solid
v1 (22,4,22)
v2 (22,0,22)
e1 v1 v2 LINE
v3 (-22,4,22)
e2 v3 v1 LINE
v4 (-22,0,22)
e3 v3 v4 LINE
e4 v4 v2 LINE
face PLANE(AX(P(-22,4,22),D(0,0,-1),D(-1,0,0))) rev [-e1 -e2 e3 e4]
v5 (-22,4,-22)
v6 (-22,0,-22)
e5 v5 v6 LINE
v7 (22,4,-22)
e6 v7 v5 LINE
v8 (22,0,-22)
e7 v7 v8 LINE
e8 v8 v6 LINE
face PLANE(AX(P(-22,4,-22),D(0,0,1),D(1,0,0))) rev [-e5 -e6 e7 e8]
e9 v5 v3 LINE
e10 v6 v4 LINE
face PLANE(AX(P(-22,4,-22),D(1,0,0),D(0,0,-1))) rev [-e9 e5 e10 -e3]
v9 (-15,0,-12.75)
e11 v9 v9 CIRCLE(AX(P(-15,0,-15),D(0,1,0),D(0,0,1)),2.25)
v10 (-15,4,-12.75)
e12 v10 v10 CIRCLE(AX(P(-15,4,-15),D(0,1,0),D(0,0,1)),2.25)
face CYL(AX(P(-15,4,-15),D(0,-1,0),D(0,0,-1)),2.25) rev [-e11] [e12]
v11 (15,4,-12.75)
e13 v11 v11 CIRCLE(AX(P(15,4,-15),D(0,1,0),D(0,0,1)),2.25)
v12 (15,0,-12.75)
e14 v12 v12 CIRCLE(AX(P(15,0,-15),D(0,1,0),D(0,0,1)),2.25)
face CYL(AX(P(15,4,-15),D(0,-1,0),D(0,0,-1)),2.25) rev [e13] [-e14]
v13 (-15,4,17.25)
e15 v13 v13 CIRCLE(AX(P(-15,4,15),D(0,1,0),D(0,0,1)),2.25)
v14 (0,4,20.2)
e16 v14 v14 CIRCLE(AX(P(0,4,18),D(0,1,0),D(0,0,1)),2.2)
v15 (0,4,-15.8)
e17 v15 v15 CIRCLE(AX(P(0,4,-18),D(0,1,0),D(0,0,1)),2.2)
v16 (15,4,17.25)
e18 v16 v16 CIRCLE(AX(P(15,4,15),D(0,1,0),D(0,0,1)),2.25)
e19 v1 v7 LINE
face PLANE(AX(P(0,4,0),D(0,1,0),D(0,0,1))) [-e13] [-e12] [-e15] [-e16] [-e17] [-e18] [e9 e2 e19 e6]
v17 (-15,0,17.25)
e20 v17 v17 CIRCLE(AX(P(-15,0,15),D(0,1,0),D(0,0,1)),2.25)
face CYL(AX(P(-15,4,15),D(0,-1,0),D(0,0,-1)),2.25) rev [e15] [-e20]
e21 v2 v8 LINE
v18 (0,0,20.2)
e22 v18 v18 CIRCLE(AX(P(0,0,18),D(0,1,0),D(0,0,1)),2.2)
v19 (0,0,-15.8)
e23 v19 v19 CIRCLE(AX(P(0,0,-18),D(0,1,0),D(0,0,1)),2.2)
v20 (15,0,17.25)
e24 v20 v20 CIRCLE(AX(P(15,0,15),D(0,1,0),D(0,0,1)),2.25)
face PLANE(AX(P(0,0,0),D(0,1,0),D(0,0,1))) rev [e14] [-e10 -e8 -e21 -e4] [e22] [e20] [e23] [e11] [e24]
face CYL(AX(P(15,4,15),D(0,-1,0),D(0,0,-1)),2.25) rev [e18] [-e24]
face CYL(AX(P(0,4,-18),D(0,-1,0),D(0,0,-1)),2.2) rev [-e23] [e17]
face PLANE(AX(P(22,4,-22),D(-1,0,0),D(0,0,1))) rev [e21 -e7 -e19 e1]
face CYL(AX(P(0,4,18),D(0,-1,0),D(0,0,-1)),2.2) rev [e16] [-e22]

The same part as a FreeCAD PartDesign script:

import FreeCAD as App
import Part
import Sketcher
from FreeCAD import Vector
Q = App.Units.Quantity


def add_polygon(sketch, points):
    """Adds a closed chain of lines whose ends are joined by coincident constraints."""
    first, n = sketch.GeometryCount, len(points)
    for a, b in zip(points, points[1:] + points[:1]):
        sketch.addGeometry(Part.LineSegment(App.Vector(*a, 0), App.Vector(*b, 0)), False)
    for i in range(n):
        sketch.addConstraint(Sketcher.Constraint("Coincident", first + i, 2, first + (i + 1) % n, 1))

doc = App.newDocument("Part")
body = doc.addObject("PartDesign::Body", "Body")

sketch1 = body.newObject("Sketcher::SketchObject", "Sketch")
sketch1.AttachmentSupport = (doc.getObject("XZ_Plane"), [""])
sketch1.MapMode = "FlatFace"
add_polygon(sketch1, [(-22, -22), (-22, 22), (22, 22), (22, -22)])
sketch1.addConstraint(Sketcher.Constraint("Vertical", 0))
sketch1.addConstraint(Sketcher.Constraint("Horizontal", 1))
sketch1.addConstraint(Sketcher.Constraint("Vertical", 2))
sketch1.addConstraint(Sketcher.Constraint("Horizontal", 3))
sketch1.addConstraint(Sketcher.Constraint("Symmetric", 0, 2, 2, 2, -1, 1))
sketch1.addConstraint(Sketcher.Constraint("Equal", 3, 0))
sketch1.addConstraint(Sketcher.Constraint("DistanceX", 1, 1, 1, 2, Q("44 mm")))
pad1 = body.newObject("PartDesign::Pad", "Pad")
pad1.Profile = sketch1
pad1.Length = 4
pad1.Reversed = True

sketch2 = body.newObject("Sketcher::SketchObject", "Sketch001")
sketch2.AttachmentSupport = (doc.getObject("XZ_Plane"), [""])
sketch2.MapMode = "FlatFace"
sketch2.addGeometry(Part.Circle(Vector(15, 15, 0), Vector(0, 0, 1), 2.2), False)
sketch2.addGeometry(Part.Circle(Vector(-15, 15, 0), Vector(0, 0, 1), 2.2), False)
sketch2.addGeometry(Part.Circle(Vector(15, -15, 0), Vector(0, 0, 1), 2.2), False)
sketch2.addGeometry(Part.Circle(Vector(-15, -15, 0), Vector(0, 0, 1), 2.2), False)
sketch2.addGeometry(Part.Circle(Vector(0, 18, 0), Vector(0, 0, 1), 2.2), False)
sketch2.addGeometry(Part.Circle(Vector(0, -18, 0), Vector(0, 0, 1), 2.2), False)
sketch2.addConstraint(Sketcher.Constraint("Equal", 0, 1))
sketch2.addConstraint(Sketcher.Constraint("Equal", 1, 2))
sketch2.addConstraint(Sketcher.Constraint("Equal", 2, 3))
sketch2.addConstraint(Sketcher.Constraint("Equal", 4, 5))
sketch2.addConstraint(Sketcher.Constraint("Symmetric", 1, 3, 2, 3, -1, 1))
sketch2.addConstraint(Sketcher.Constraint("Symmetric", 0, 3, 3, 3, -1, 1))
sketch2.addConstraint(Sketcher.Constraint("Symmetric", 4, 3, 5, 3, -1, 1))
sketch2.addConstraint(Sketcher.Constraint("Symmetric", 0, 3, 1, 3, -2))
sketch2.addConstraint(Sketcher.Constraint("PointOnObject", 4, 3, -2))
sketch2.addConstraint(Sketcher.Constraint("Diameter", 0, Q("4.5 mm")))
sketch2.addConstraint(Sketcher.Constraint("Diameter", 4, Q("4.4 mm")))
sketch2.addConstraint(Sketcher.Constraint("DistanceX", -1, 1, 0, 3, Q("15 mm")))
sketch2.addConstraint(Sketcher.Constraint("DistanceY", -1, 1, 0, 3, Q("15 mm")))
sketch2.addConstraint(Sketcher.Constraint("DistanceY", -1, 1, 4, 3, Q("18 mm")))
pocket1 = body.newObject("PartDesign::Pocket", "Pocket")
pocket1.Profile = sketch2
pocket1.Length = 4

doc.recompute()
